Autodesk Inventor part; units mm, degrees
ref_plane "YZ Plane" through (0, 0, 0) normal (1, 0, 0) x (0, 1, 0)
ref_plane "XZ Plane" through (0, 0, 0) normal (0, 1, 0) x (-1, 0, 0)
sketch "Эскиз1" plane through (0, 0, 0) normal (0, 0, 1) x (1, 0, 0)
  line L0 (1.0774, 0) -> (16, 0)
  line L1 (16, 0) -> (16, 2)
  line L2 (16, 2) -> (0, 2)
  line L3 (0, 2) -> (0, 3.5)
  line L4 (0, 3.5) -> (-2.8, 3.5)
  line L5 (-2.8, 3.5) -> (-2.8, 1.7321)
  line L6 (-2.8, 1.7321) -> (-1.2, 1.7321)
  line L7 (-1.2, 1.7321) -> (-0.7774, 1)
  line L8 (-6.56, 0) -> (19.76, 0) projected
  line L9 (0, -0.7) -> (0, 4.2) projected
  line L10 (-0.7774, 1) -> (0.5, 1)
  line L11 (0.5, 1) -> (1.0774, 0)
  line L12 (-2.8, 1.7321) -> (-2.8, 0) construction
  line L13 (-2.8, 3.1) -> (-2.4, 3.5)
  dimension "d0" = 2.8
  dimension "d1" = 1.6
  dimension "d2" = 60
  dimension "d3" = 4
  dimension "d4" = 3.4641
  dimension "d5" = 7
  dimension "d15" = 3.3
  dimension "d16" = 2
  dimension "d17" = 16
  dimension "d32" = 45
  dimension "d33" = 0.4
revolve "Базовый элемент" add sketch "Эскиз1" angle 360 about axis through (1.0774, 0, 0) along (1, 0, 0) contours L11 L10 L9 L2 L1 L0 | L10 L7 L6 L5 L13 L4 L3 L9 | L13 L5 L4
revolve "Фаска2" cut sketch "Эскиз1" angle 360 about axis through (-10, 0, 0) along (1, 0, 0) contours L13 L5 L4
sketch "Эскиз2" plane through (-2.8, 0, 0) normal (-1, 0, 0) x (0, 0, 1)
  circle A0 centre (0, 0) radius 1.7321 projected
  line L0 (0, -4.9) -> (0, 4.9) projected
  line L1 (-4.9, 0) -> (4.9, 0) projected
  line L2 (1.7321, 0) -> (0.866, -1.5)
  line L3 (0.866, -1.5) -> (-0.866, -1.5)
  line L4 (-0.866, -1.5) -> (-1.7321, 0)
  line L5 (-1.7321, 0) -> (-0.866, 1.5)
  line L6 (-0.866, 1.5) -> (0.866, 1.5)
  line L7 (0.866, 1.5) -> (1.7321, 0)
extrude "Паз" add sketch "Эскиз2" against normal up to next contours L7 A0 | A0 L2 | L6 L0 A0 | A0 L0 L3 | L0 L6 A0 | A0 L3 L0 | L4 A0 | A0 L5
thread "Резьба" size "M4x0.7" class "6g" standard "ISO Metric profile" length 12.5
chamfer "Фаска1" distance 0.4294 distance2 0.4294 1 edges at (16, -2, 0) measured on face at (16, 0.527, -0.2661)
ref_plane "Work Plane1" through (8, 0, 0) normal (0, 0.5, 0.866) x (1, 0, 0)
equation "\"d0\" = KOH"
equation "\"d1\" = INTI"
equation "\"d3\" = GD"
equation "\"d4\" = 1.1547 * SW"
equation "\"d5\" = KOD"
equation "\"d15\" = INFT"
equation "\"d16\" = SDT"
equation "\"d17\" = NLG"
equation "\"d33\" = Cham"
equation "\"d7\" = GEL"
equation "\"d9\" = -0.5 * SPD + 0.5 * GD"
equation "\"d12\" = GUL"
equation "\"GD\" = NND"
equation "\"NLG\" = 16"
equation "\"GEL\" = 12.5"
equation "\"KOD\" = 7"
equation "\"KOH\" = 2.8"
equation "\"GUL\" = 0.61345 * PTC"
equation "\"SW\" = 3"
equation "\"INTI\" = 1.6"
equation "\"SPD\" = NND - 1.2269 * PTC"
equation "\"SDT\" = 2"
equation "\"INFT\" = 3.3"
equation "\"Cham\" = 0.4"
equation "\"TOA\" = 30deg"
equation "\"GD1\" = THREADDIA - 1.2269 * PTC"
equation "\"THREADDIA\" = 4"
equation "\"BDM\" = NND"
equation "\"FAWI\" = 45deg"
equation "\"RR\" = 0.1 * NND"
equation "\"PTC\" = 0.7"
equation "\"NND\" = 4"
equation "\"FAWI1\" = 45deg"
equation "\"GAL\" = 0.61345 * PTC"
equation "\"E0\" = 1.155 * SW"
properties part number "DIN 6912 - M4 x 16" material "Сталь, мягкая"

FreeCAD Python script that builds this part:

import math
import FreeCAD as App
import Part
import Sketcher

V = App.Vector


def edges_at(feature, points):
    """Names of the edges that pass closest to the given points."""
    edges = feature.Shape.Edges
    near = lambda p: min(range(len(edges)), key=lambda i: edges[i].distToShape(Part.Vertex(*p))[0])
    return sorted({f"Edge{near(p) + 1}" for p in points})


def add_polygon(sketch, points):
    """Adds a closed chain of lines whose ends are joined by coincident constraints."""
    first, n = sketch.GeometryCount, len(points)
    for a, b in zip(points, points[1:] + points[:1]):
        sketch.addGeometry(Part.LineSegment(App.Vector(*a, 0), App.Vector(*b, 0)), False)
    for i in range(n):
        sketch.addConstraint(Sketcher.Constraint("Coincident", first + i, 2, first + (i + 1) % n, 1))

doc = App.newDocument("Part")
params = doc.addObject("Spreadsheet::Sheet", "Params")
for row, (alias, value) in enumerate([
    ("sketch1_width", "16 mm"),
    ("sketch1_height", "2 mm"),
    ("sketch1_width2", "2.8 mm"),
    ("sketch1_width3", "1.6 mm"),
    ("sketch1_height2", "1.5 mm"),
    ("revolution_angle", "360 deg"),
    ("sketch2_width", "0.4 mm"),
    ("groove_angle", "360 deg"),
    ("pad1_length", "1.734 mm"),
    ("chamfer_size", "0.4294 mm"),
    ("chamfer_size2", "0.4294 mm"),
], start=1):
    params.set(f"A{row}", alias)
    params.set(f"B{row}", "=" + value)
    params.setAlias(f"B{row}", alias)

body = doc.addObject("PartDesign::Body", "Body")

# Sketch on XY plane
sketch1 = body.newObject("Sketcher::SketchObject", "Sketch")
sketch1.AttachmentSupport = (doc.getObject("XY_Plane"), [""])
sketch1.MapMode = "FlatFace"
add_polygon(sketch1, [(0.5, 1), (1.0774, 0), (16, 0), (16, 2), (0, 2), (0, 3.5), (-2.8, 3.5), (-2.8, 1.7321), (-1.2, 1.7321), (-0.7774, 1)])  # lines 0-9
sketch1.addConstraint(Sketcher.Constraint("Horizontal", 1))
sketch1.addConstraint(Sketcher.Constraint("Vertical", 2))
sketch1.addConstraint(Sketcher.Constraint("Horizontal", 3))
sketch1.addConstraint(Sketcher.Constraint("Vertical", 4))
sketch1.addConstraint(Sketcher.Constraint("Horizontal", 5))
sketch1.addConstraint(Sketcher.Constraint("Vertical", 6))
sketch1.addConstraint(Sketcher.Constraint("Horizontal", 7))
sketch1.addConstraint(Sketcher.Constraint("Horizontal", 9))
sketch1.addConstraint(Sketcher.Constraint("PointOnObject", 0, 2, -1))
sketch1.addConstraint(Sketcher.Constraint("PointOnObject", 3, 2, -2))
sketch1.addConstraint(Sketcher.Constraint("Parallel", 0, 8))
sketch1.addConstraint(Sketcher.Constraint("DistanceX", 3, 2, 3, 1, 16.0))
sketch1.addConstraint(Sketcher.Constraint("DistanceY", 2, 1, 2, 2, 2.0))
sketch1.addConstraint(Sketcher.Constraint("DistanceX", 5, 2, 5, 1, 2.8))
sketch1.addConstraint(Sketcher.Constraint("DistanceX", 7, 1, 7, 2, 1.6))
sketch1.addConstraint(Sketcher.Constraint("DistanceY", 4, 1, 4, 2, 1.5))
sketch1.addConstraint(Sketcher.Constraint("DistanceY", -1, 1, 8, 2, 1.0))
sketch1.addConstraint(Sketcher.Constraint("DistanceX", -1, 1, 9, 2, 0.5))
sketch1.addConstraint(Sketcher.Constraint("DistanceY", 6, 2, 6, 1, 1.768))
sketch1.addConstraint(Sketcher.Constraint("DistanceX", 1, 1, 1, 2, 14.9226))
sketch1.setExpression("Constraints[21]", "Params.sketch1_width")
sketch1.setExpression("Constraints[22]", "Params.sketch1_height")
sketch1.setExpression("Constraints[23]", "Params.sketch1_width2")
sketch1.setExpression("Constraints[24]", "Params.sketch1_width3")
sketch1.setExpression("Constraints[25]", "Params.sketch1_height2")
revolution = body.newObject("PartDesign::Revolution", "Revolution")
revolution.Profile = sketch1
revolution.ReferenceAxis = (sketch1, ["H_Axis"])
revolution.setExpression("Angle", "Params.revolution_angle")

# Sketch on XY plane
sketch2 = body.newObject("Sketcher::SketchObject", "Sketch001")
sketch2.AttachmentSupport = (doc.getObject("XY_Plane"), [""])
sketch2.MapMode = "FlatFace"
add_polygon(sketch2, [(-2.8, 3.1), (-2.4, 3.5), (-2.8, 3.5)])  # lines 0-2
sketch2.addConstraint(Sketcher.Constraint("Horizontal", 1))
sketch2.addConstraint(Sketcher.Constraint("Vertical", 2))
sketch2.addConstraint(Sketcher.Constraint("Equal", 1, 2))
sketch2.addConstraint(Sketcher.Constraint("DistanceX", 1, 2, 1, 1, 0.4))
sketch2.addConstraint(Sketcher.Constraint("DistanceX", 1, 2, -1, 1, 2.8))
sketch2.addConstraint(Sketcher.Constraint("DistanceY", -1, 1, 0, 2, 3.5))
sketch2.setExpression("Constraints[6]", "Params.sketch2_width")
groove = body.newObject("PartDesign::Groove", "Groove")
groove.Profile = sketch2
groove.ReferenceAxis = (sketch2, ["H_Axis"])
groove.setExpression("Angle", "Params.groove_angle")

# Sketch on YZ plane
sketch3 = body.newObject("Sketcher::SketchObject", "Sketch002")
sketch3.AttachmentSupport = (doc.getObject("YZ_Plane"), [""])
sketch3.MapMode = "FlatFace"
sketch3.AttachmentOffset = App.Placement(V(0, 0, -2.8), App.Rotation())
sketch3.addGeometry(Part.LineSegment(V(1.5, 0.866, 0), V(0, 1.7321, 0)), False)
sketch3.addGeometry(Part.ArcOfCircle(Part.Circle(V(0, 0, 0), V(0, 0, 1), 1.7321), math.radians(29.999272), math.radians(90)), False)
sketch3.addGeometry(Part.ArcOfCircle(Part.Circle(V(0, 0, 0), V(0, 0, 1), 1.7321), math.radians(90), math.radians(150.000728)), False)
sketch3.addGeometry(Part.LineSegment(V(0, 1.7321, 0), V(-1.5, 0.866, 0)), False)
sketch3.addGeometry(Part.ArcOfCircle(Part.Circle(V(0, 0, 0), V(0, 0, 1), 1.7321), math.radians(-29.999272), math.radians(29.999272)), False)
sketch3.addGeometry(Part.LineSegment(V(1.5, 0.866, 0), V(1.5, -0.866, 0)), False)
sketch3.addGeometry(Part.LineSegment(V(-1.5, 0.866, 0), V(-1.5, -0.866, 0)), False)
sketch3.addGeometry(Part.ArcOfCircle(Part.Circle(V(0, 0, 0), V(0, 0, 1), 1.7321), math.radians(150.000728), math.radians(209.999272)), False)
sketch3.addGeometry(Part.LineSegment(V(-1.5, -0.866, 0), V(0, -1.7321, 0)), False)
sketch3.addGeometry(Part.ArcOfCircle(Part.Circle(V(0, 0, 0), V(0, 0, 1), 1.7321), math.radians(-150.000728), math.radians(-90)), False)
sketch3.addGeometry(Part.ArcOfCircle(Part.Circle(V(0, 0, 0), V(0, 0, 1), 1.7321), math.radians(-90), math.radians(-29.999272)), False)
sketch3.addGeometry(Part.LineSegment(V(0, -1.7321, 0), V(1.5, -0.866, 0)), False)
sketch3.addConstraint(Sketcher.Constraint("Coincident", 0, 1, 1, 1))
sketch3.addConstraint(Sketcher.Constraint("Coincident", 1, 2, 0, 2))
sketch3.addConstraint(Sketcher.Constraint("Coincident", 2, 1, 3, 1))
sketch3.addConstraint(Sketcher.Constraint("Coincident", 3, 2, 2, 2))
sketch3.addConstraint(Sketcher.Constraint("Coincident", 4, 1, 5, 2))
sketch3.addConstraint(Sketcher.Constraint("Coincident", 5, 1, 4, 2))
sketch3.addConstraint(Sketcher.Constraint("Coincident", 6, 1, 7, 1))
sketch3.addConstraint(Sketcher.Constraint("Coincident", 7, 2, 6, 2))
sketch3.addConstraint(Sketcher.Constraint("Coincident", 8, 1, 9, 1))
sketch3.addConstraint(Sketcher.Constraint("Coincident", 9, 2, 8, 2))
sketch3.addConstraint(Sketcher.Constraint("Coincident", 10, 1, 11, 1))
sketch3.addConstraint(Sketcher.Constraint("Coincident", 11, 2, 10, 2))
sketch3.addConstraint(Sketcher.Constraint("Vertical", 5))
sketch3.addConstraint(Sketcher.Constraint("Vertical", 6))
sketch3.addConstraint(Sketcher.Constraint("Coincident", 1, 3, -1, 1))
sketch3.addConstraint(Sketcher.Constraint("Coincident", 2, 3, -1, 1))
sketch3.addConstraint(Sketcher.Constraint("Coincident", 4, 3, -1, 1))
sketch3.addConstraint(Sketcher.Constraint("Coincident", 7, 3, -1, 1))
sketch3.addConstraint(Sketcher.Constraint("Coincident", 9, 3, -1, 1))
sketch3.addConstraint(Sketcher.Constraint("Coincident", 10, 3, -1, 1))
sketch3.addConstraint(Sketcher.Constraint("Coincident", 2, 1, 1, 2))
sketch3.addConstraint(Sketcher.Constraint("Coincident", 5, 1, 0, 1))
sketch3.addConstraint(Sketcher.Constraint("Coincident", 6, 1, 3, 2))
sketch3.addConstraint(Sketcher.Constraint("Coincident", 8, 1, 7, 2))
sketch3.addConstraint(Sketcher.Constraint("Coincident", 10, 1, 9, 2))
sketch3.addConstraint(Sketcher.Constraint("PointOnObject", 1, 2, -2))
sketch3.addConstraint(Sketcher.Constraint("PointOnObject", 9, 2, -2))
sketch3.addConstraint(Sketcher.Constraint("Parallel", 0, 8))
sketch3.addConstraint(Sketcher.Constraint("Parallel", 3, 11))
sketch3.addConstraint(Sketcher.Constraint("Radius", 1, 1.732))
sketch3.addConstraint(Sketcher.Constraint("DistanceX", -1, 1, 0, 1, 1.5))
pad1 = body.newObject("PartDesign::Pad", "Pad")
pad1.Profile = sketch3
pad1.setExpression("Length", "Params.pad1_length")
doc.recompute()

chamfer = body.newObject("PartDesign::Chamfer", "Chamfer")
chamfer.Base = (pad1, edges_at(pad1, [(16, -2, 0)]))
chamfer.ChamferType = "Two distances"
chamfer.setExpression("Size", "Params.chamfer_size")
chamfer.setExpression("Size2", "Params.chamfer_size2")

doc.recompute()
